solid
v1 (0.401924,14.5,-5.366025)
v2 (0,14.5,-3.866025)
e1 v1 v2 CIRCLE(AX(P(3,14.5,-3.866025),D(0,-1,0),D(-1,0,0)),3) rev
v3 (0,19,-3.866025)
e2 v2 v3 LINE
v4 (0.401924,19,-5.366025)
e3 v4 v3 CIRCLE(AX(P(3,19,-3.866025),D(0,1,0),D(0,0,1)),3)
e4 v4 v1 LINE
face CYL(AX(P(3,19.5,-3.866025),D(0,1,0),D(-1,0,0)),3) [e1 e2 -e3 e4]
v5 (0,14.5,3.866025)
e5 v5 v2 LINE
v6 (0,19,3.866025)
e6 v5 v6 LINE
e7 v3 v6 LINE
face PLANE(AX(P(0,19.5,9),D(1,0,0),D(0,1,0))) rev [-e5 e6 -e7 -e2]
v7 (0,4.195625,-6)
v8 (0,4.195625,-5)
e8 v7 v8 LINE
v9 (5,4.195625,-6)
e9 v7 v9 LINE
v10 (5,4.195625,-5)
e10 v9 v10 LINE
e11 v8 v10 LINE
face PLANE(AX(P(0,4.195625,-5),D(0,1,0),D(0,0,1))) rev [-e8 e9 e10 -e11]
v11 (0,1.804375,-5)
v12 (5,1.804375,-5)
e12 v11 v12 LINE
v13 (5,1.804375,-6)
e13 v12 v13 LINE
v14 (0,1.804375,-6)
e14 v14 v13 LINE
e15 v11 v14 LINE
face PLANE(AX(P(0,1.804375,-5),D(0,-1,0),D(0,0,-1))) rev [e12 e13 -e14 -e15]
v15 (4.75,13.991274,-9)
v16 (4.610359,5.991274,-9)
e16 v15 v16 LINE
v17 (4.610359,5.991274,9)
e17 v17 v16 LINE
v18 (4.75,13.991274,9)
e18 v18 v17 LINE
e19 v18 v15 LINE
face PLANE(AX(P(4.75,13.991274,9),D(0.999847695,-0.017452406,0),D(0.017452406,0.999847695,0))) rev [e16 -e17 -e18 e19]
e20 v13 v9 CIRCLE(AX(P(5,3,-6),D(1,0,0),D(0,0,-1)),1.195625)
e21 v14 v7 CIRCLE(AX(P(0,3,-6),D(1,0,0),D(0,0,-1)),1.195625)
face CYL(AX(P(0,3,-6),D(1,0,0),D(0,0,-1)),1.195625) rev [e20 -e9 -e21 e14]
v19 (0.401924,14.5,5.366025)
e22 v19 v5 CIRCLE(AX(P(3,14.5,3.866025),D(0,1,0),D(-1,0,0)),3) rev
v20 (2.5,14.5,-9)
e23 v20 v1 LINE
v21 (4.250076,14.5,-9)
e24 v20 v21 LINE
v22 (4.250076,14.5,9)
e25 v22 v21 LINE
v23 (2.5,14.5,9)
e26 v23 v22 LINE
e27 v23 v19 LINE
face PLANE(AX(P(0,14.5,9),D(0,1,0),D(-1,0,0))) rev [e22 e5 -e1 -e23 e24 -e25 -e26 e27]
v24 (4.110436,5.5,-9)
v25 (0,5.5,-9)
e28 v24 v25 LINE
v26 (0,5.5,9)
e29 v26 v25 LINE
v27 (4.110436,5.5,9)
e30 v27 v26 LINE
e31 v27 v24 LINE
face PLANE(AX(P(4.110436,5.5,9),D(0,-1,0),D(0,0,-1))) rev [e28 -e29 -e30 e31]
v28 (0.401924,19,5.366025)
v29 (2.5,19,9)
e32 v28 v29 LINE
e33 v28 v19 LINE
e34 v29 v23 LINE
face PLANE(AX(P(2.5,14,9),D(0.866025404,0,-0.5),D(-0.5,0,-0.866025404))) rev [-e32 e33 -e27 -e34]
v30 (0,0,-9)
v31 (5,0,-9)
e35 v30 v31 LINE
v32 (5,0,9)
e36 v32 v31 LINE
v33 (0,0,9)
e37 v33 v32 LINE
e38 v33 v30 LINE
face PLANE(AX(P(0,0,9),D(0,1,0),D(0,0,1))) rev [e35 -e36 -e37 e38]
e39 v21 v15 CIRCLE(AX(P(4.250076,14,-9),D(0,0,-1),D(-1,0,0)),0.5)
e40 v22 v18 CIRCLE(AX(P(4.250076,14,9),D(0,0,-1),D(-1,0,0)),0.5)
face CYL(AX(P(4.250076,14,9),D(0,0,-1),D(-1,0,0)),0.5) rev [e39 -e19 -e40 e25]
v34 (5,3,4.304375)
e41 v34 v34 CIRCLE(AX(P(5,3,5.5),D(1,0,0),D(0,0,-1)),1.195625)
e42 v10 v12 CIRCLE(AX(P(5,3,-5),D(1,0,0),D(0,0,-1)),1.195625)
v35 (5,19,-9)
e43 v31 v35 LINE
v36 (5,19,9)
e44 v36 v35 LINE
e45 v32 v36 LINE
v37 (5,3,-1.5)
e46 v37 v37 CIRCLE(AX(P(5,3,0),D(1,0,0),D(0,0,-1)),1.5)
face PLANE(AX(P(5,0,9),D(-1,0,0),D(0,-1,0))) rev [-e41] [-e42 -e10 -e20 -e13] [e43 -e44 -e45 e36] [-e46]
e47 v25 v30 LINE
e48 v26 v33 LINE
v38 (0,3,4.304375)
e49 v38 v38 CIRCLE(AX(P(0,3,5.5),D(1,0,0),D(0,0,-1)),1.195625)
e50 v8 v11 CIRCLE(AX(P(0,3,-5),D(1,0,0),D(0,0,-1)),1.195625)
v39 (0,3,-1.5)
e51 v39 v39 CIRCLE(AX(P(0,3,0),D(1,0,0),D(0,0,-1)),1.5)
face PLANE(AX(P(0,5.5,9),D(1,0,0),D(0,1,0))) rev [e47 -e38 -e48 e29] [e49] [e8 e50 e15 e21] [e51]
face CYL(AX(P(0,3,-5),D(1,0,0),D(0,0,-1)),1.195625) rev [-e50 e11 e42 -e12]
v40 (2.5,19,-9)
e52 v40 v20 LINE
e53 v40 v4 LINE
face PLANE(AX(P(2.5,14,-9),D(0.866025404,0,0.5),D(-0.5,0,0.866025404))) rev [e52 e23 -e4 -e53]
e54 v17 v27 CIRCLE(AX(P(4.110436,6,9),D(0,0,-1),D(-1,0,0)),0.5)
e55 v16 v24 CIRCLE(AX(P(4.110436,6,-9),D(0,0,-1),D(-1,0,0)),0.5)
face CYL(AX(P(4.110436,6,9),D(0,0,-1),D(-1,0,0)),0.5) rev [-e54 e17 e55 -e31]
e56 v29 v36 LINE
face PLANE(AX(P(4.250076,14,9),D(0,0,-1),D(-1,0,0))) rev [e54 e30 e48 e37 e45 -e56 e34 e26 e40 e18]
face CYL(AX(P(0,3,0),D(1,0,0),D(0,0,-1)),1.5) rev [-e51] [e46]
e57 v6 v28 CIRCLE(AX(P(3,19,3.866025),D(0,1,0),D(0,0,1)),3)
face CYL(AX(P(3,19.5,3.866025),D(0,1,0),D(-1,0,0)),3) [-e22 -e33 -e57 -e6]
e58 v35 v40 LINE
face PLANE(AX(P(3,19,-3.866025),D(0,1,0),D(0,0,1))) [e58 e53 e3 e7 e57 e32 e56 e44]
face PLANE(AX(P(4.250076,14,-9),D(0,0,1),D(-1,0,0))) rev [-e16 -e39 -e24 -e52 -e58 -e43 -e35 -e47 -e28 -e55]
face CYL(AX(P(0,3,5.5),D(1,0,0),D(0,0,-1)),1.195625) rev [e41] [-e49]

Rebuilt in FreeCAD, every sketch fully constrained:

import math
import FreeCAD as App
import Part
import Sketcher
from FreeCAD import Vector
Q = App.Units.Quantity


def edges_at(feature, points):
    """Names of the edges that pass closest to the given points."""
    edges = feature.Shape.Edges
    near = lambda p: min(range(len(edges)), key=lambda i: edges[i].distToShape(Part.Vertex(*p))[0])
    return sorted({f"Edge{near(p) + 1}" for p in points})

doc = App.newDocument("Part")
params = doc.addObject("Spreadsheet::Sheet", "Params")
for row, (alias, value) in enumerate([
    ("sketch1_radius", "0.5 mm"),
    ("sketch1_width", "5 mm"),
    ("sketch1_height", "5.5 mm"),
    ("sketch1_height2", "19.5 mm"),
    ("pad1_length", "9 mm"),
    ("chamfer_size", "2.5 mm"),
    ("chamfer_size2", "4.330127 mm"),
    ("fillet_radius", "3 mm"),
    ("sketch2_diameter", "3 mm"),
    ("sketch2_height", "1 mm"),
    ("sketch3_radius", "3 mm"),
    ("sketch3_height", "18 mm"),
    ("sketch3_width", "2.5 mm"),
    ("pocket2_length", "0.5 mm"),
], start=1):
    params.set(f"A{row}", alias)
    params.set(f"B{row}", "=" + value)
    params.setAlias(f"B{row}", alias)

body = doc.addObject("PartDesign::Body", "Body")

# Sketch on XY plane
sketch1 = doc.addObject("Sketcher::SketchObject", "Sketch")
body.addObject(sketch1)
sketch1.AttachmentSupport = (doc.XY_Plane, [""])
sketch1.MapMode = "FlatFace"
sketch1.addGeometry([
    Part.LineSegment(Vector(0, 19.5, 0), Vector(0, 14.5, 0)),  # 0
    Part.LineSegment(Vector(0, 14.5, 0), Vector(4.3, 14.5, 0)),  # 1
    Part.ArcOfCircle(Part.Circle(Vector(4.3, 14, 0), Vector(0, 0, 1), 0.5), math.radians(-1), math.radians(90)),  # 2
    Part.LineSegment(Vector(4.8, 14, 0), Vector(4.6, 6, 0)),  # 3
    Part.ArcOfCircle(Part.Circle(Vector(4.1, 6, 0), Vector(0, 0, 1), 0.5), math.radians(-90), math.radians(-1)),  # 4
    Part.LineSegment(Vector(4.1, 5.5, 0), Vector(0, 5.5, 0)),  # 5
    Part.LineSegment(Vector(0, 5.5, 0), Vector(0, 0, 0)),  # 6
    Part.LineSegment(Vector(0, 0, 0), Vector(5, 0, 0)),  # 7
    Part.LineSegment(Vector(5, 0, 0), Vector(5, 19.5, 0)),  # 8
    Part.LineSegment(Vector(5, 19.5, 0), Vector(0, 19.5, 0)),  # 9
], False)
sketch1.addConstraint([
    Sketcher.Constraint("Coincident", 0, 2, 1, 1),
    Sketcher.Constraint("Tangent", 1, 2, 2, 2),
    Sketcher.Constraint("Tangent", 2, 1, 3, 1),
    Sketcher.Constraint("Tangent", 3, 2, 4, 2),
    Sketcher.Constraint("Tangent", 4, 1, 5, 1),
    Sketcher.Constraint("Coincident", 5, 2, 6, 1),
    Sketcher.Constraint("Coincident", 6, 2, 7, 1),
    Sketcher.Constraint("Coincident", 7, 2, 8, 1),
    Sketcher.Constraint("Coincident", 8, 2, 9, 1),
    Sketcher.Constraint("Coincident", 9, 2, 0, 1),
    Sketcher.Constraint("Vertical", 0),
    Sketcher.Constraint("Horizontal", 1),
    Sketcher.Constraint("Horizontal", 5),
    Sketcher.Constraint("Vertical", 6),
    Sketcher.Constraint("Horizontal", 7),
    Sketcher.Constraint("Vertical", 8),
    Sketcher.Constraint("Horizontal", 9),
    Sketcher.Constraint("Coincident", 6, 2, -1, 1),
    Sketcher.Constraint("Equal", 2, 4),
    Sketcher.Constraint("PointOnObject", 0, 2, -2),
    Sketcher.Constraint("Equal", 9, 0),
    Sketcher.Constraint("Radius", 2, Q("0.5 mm")),
    Sketcher.Constraint("DistanceX", 7, 1, 7, 2, Q("5 mm")),
    Sketcher.Constraint("Angle", 3, Q("-91 deg")),
    Sketcher.Constraint("DistanceY", 6, 2, 6, 1, Q("5.5 mm")),
    Sketcher.Constraint("DistanceY", 8, 1, 8, 2, Q("19.5 mm")),
    Sketcher.Constraint("DistanceX", -1, 1, 2, 1, Q("4.75 mm")),
])
sketch1.setExpression("Constraints[21]", "Params.sketch1_radius")
sketch1.setExpression("Constraints[22]", "Params.sketch1_width")
sketch1.setExpression("Constraints[24]", "Params.sketch1_height")
sketch1.setExpression("Constraints[25]", "Params.sketch1_height2")
pad1 = doc.addObject("PartDesign::Pad", "Pad")
body.addObject(pad1)
pad1.Profile = sketch1
pad1.setExpression("Length", "Params.pad1_length")
doc.recompute()

chamfer = doc.addObject("PartDesign::Chamfer", "Chamfer")
body.addObject(chamfer)
chamfer.Base = (pad1, edges_at(pad1, [(0, 17, 9)]))
chamfer.ChamferType = "Two distances"
chamfer.setExpression("Size", "Params.chamfer_size")
chamfer.setExpression("Size2", "Params.chamfer_size2")
chamfer.FlipDirection = True
doc.recompute()

fillet = doc.addObject("PartDesign::Fillet", "Fillet")
body.addObject(fillet)
fillet.Base = (chamfer, edges_at(chamfer, [(0, 17, 4.67)]))
fillet.setExpression("Radius", "Params.fillet_radius")
body2 = doc.addObject("PartDesign::Body", "Body001")
doc.recompute()

body2.BaseFeature = body
doc.recompute()

mirroring = doc.addObject("Part::Mirroring", "Mirroring")
mirroring.Source = body
mirroring.Base = Vector(4.250076, 14, 0)
mirroring.Normal = Vector(0, 0, -1)
body3 = doc.addObject("PartDesign::Body", "Body002")
body3.BaseFeature = mirroring
boolean = doc.addObject("PartDesign::Boolean", "Boolean")
body2.addObject(boolean)
boolean.Type = "Fuse"
boolean.addObjects([body3])
doc.recompute()

# Sketch on YZ plane
sketch2 = doc.addObject("Sketcher::SketchObject", "Sketch001")
body2.addObject(sketch2)
sketch2.AttachmentSupport = (doc.getObject("YZ_Plane001"), [""])
sketch2.MapMode = "FlatFace"
sketch2.AttachmentOffset = App.Placement(Vector(0, 0, 5), App.Rotation())
sketch2.addGeometry([
    Part.Circle(Vector(3, 5.5, 0), Vector(0, 0, 1), 1.2),  # 0
    Part.Circle(Vector(3, 0, 0), Vector(0, 0, 1), 1.5),  # 1
    Part.LineSegment(Vector(4.2, -6, 0), Vector(4.2, -5, 0)),  # 2
    Part.ArcOfCircle(Part.Circle(Vector(3, -5, 0), Vector(0, 0, 1), 1.2), math.radians(0), math.radians(180)),  # 3
    Part.LineSegment(Vector(1.8, -5, 0), Vector(1.8, -6, 0)),  # 4
    Part.ArcOfCircle(Part.Circle(Vector(3, -6, 0), Vector(0, 0, 1), 1.2), math.radians(180), math.radians(360)),  # 5
], False)
sketch2.addConstraint([
    Sketcher.Constraint("Tangent", 2, 2, 3, 1),
    Sketcher.Constraint("Tangent", 3, 2, 4, 1),
    Sketcher.Constraint("Tangent", 4, 2, 5, 1),
    Sketcher.Constraint("Tangent", 5, 2, 2, 1),
    Sketcher.Constraint("Vertical", 2),
    Sketcher.Constraint("Vertical", 4),
    Sketcher.Constraint("Equal", 0, 3),
    Sketcher.Constraint("PointOnObject", 1, 3, -1),
    Sketcher.Constraint("Vertical", 0, 3, 1, 3),
    Sketcher.Constraint("Vertical", 1, 3, 3, 3),
    Sketcher.Constraint("Diameter", 1, Q("3 mm")),
    Sketcher.Constraint("DistanceY", 2, 1, 2, 2, Q("1 mm")),
    Sketcher.Constraint("DistanceX", -1, 1, 0, 3, Q("3 mm")),
    Sketcher.Constraint("DistanceY", 3, 3, -1, 1, Q("5 mm")),
    Sketcher.Constraint("DistanceY", -1, 1, 0, 3, Q("5.5 mm")),
    Sketcher.Constraint("Diameter", 0, Q("2.39125 mm")),
])
sketch2.setExpression("Constraints[10]", "Params.sketch2_diameter")
sketch2.setExpression("Constraints[11]", "Params.sketch2_height")
pocket1 = doc.addObject("PartDesign::Pocket", "Pocket")
body2.addObject(pocket1)
pocket1.Profile = sketch2
pocket1.Type = "ThroughAll"

# Sketch on XZ plane
sketch3 = doc.addObject("Sketcher::SketchObject", "Sketch002")
body2.addObject(sketch3)
sketch3.AttachmentSupport = (doc.getObject("XZ_Plane001"), [""])
sketch3.MapMode = "FlatFace"
sketch3.AttachmentOffset = App.Placement(Vector(0, 0, -19.5), App.Rotation())
sketch3.addGeometry([
    Part.LineSegment(Vector(0, -3.9, 0), Vector(0, 3.9, 0)),  # 0
    Part.ArcOfCircle(Part.Circle(Vector(3, 3.9, 0), Vector(0, 0, 1), 3), math.radians(150), math.radians(180)),  # 1
    Part.LineSegment(Vector(0.4, 5.4, 0), Vector(2.5, 9, 0)),  # 2
    Part.LineSegment(Vector(2.5, 9, 0), Vector(5, 9, 0)),  # 3
    Part.LineSegment(Vector(5, 9, 0), Vector(5, -9, 0)),  # 4
    Part.LineSegment(Vector(5, -9, 0), Vector(2.5, -9, 0)),  # 5
    Part.LineSegment(Vector(2.5, -9, 0), Vector(0.4, -5.4, 0)),  # 6
    Part.ArcOfCircle(Part.Circle(Vector(3, -3.9, 0), Vector(0, 0, 1), 3), math.radians(180), math.radians(210)),  # 7
], False)
sketch3.addConstraint([
    Sketcher.Constraint("Tangent", 0, 2, 1, 2),
    Sketcher.Constraint("Tangent", 1, 1, 2, 1),
    Sketcher.Constraint("Coincident", 2, 2, 3, 1),
    Sketcher.Constraint("Coincident", 3, 2, 4, 1),
    Sketcher.Constraint("Coincident", 4, 2, 5, 1),
    Sketcher.Constraint("Coincident", 5, 2, 6, 1),
    Sketcher.Constraint("Tangent", 6, 2, 7, 2),
    Sketcher.Constraint("Tangent", 7, 1, 0, 1),
    Sketcher.Constraint("Vertical", 0),
    Sketcher.Constraint("Horizontal", 3),
    Sketcher.Constraint("Vertical", 4),
    Sketcher.Constraint("Horizontal", 5),
    Sketcher.Constraint("Equal", 1, 7),
    Sketcher.Constraint("Symmetric", 0, 2, 7, 1, -1, 1),
    Sketcher.Constraint("Symmetric", 2, 2, 5, 2, -1),
    Sketcher.Constraint("Radius", 1, Q("3 mm")),
    Sketcher.Constraint("DistanceY", 4, 2, 4, 1, Q("18 mm")),
    Sketcher.Constraint("Angle", 2, Q("60 deg")),
    Sketcher.Constraint("DistanceX", 3, 1, 3, 2, Q("2.5 mm")),
    Sketcher.Constraint("DistanceX", -1, 1, 3, 2, Q("5 mm")),
])
sketch3.setExpression("Constraints[15]", "Params.sketch3_radius")
sketch3.setExpression("Constraints[16]", "Params.sketch3_height")
sketch3.setExpression("Constraints[18]", "Params.sketch3_width")
pocket2 = doc.addObject("PartDesign::Pocket", "Pocket001")
body2.addObject(pocket2)
pocket2.Profile = sketch3
pocket2.setExpression("Length", "Params.pocket2_length")
pocket2.Reversed = True
mirroring.Visibility = False

doc.recompute()
